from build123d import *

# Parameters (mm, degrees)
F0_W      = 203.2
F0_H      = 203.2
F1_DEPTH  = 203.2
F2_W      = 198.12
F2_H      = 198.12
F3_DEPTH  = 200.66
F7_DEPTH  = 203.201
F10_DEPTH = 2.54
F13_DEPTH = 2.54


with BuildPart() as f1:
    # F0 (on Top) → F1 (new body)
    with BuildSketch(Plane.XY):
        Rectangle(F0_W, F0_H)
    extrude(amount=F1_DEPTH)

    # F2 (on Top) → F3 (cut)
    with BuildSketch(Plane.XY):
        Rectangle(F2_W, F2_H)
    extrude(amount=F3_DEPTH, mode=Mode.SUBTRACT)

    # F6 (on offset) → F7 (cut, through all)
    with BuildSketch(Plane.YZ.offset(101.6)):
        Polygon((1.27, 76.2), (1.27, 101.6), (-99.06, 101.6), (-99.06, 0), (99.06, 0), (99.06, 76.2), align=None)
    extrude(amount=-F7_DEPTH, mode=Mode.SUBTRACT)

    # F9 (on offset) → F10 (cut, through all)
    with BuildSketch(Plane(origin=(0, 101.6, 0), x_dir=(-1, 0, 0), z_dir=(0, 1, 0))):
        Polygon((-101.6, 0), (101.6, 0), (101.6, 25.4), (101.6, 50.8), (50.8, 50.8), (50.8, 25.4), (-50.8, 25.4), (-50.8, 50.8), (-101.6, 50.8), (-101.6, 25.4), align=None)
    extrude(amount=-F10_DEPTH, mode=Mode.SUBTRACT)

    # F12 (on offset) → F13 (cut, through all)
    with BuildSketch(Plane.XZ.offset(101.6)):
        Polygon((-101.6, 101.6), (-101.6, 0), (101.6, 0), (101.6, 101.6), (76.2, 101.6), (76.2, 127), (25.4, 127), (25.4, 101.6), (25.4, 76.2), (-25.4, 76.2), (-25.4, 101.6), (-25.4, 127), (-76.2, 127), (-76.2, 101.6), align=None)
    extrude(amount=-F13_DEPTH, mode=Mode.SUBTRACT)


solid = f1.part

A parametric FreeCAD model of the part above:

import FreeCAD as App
import Part
import Sketcher
from FreeCAD import Vector
Q = App.Units.Quantity

doc = App.newDocument("Part")
body = doc.addObject("PartDesign::Body", "Body")

sketch1 = body.newObject("Sketcher::SketchObject", "Sketch")
sketch1.AttachmentSupport = (doc.getObject("XY_Plane"), [""])
sketch1.MapMode = "FlatFace"
sketch1.addGeometry([
    Part.LineSegment(Vector(-102, 102, 0), Vector(-102, -102, 0)),
    Part.LineSegment(Vector(-102, -102, 0), Vector(102, -102, 0)),
    Part.LineSegment(Vector(102, -102, 0), Vector(102, 102, 0)),
    Part.LineSegment(Vector(102, 102, 0), Vector(-102, 102, 0)),
], False)
sketch1.addConstraint([
    Sketcher.Constraint("Coincident", 0, 2, 1, 1),
    Sketcher.Constraint("Coincident", 1, 2, 2, 1),
    Sketcher.Constraint("Coincident", 2, 2, 3, 1),
    Sketcher.Constraint("Coincident", 3, 2, 0, 1),
    Sketcher.Constraint("Vertical", 0),
    Sketcher.Constraint("Horizontal", 1),
    Sketcher.Constraint("Vertical", 2),
    Sketcher.Constraint("Horizontal", 3),
    Sketcher.Constraint("Symmetric", 0, 2, 2, 2, -1, 1),
    Sketcher.Constraint("Equal", 3, 0),
    Sketcher.Constraint("DistanceX", 1, 1, 1, 2, Q("8 in")),
])
pad1 = body.newObject("PartDesign::Pad", "Pad")
pad1.Profile = sketch1
pad1.Length = Q("8 in")

sketch2 = body.newObject("Sketcher::SketchObject", "Sketch001")
sketch2.AttachmentSupport = (doc.getObject("XY_Plane"), [""])
sketch2.MapMode = "FlatFace"
sketch2.addGeometry([
    Part.LineSegment(Vector(-99, 99, 0), Vector(-99, -99, 0)),
    Part.LineSegment(Vector(-99, -99, 0), Vector(99, -99, 0)),
    Part.LineSegment(Vector(99, -99, 0), Vector(99, 99, 0)),
    Part.LineSegment(Vector(99, 99, 0), Vector(-99, 99, 0)),
], False)
sketch2.addConstraint([
    Sketcher.Constraint("Coincident", 0, 2, 1, 1),
    Sketcher.Constraint("Coincident", 1, 2, 2, 1),
    Sketcher.Constraint("Coincident", 2, 2, 3, 1),
    Sketcher.Constraint("Coincident", 3, 2, 0, 1),
    Sketcher.Constraint("Vertical", 0),
    Sketcher.Constraint("Horizontal", 1),
    Sketcher.Constraint("Vertical", 2),
    Sketcher.Constraint("Horizontal", 3),
    Sketcher.Constraint("Symmetric", 0, 2, 2, 2, -1, 1),
    Sketcher.Constraint("Equal", 3, 0),
    Sketcher.Constraint("DistanceX", 1, 1, 1, 2, Q("7.8 in")),
])
pocket1 = body.newObject("PartDesign::Pocket", "Pocket")
pocket1.Profile = sketch2
pocket1.Length = Q("7.9 in")
pocket1.Reversed = True

sketch3 = body.newObject("Sketcher::SketchObject", "Sketch002")
sketch3.AttachmentSupport = (doc.getObject("YZ_Plane"), [""])
sketch3.MapMode = "FlatFace"
sketch3.AttachmentOffset = App.Placement(Vector(0, 0, 4 * 25.4), App.Rotation())
sketch3.addGeometry([
    Part.LineSegment(Vector(1, 76, 0), Vector(1, 102, 0)),
    Part.LineSegment(Vector(1, 102, 0), Vector(-99, 102, 0)),
    Part.LineSegment(Vector(-99, 102, 0), Vector(-99, 0, 0)),
    Part.LineSegment(Vector(-99, 0, 0), Vector(99, 0, 0)),
    Part.LineSegment(Vector(99, 0, 0), Vector(99, 76, 0)),
    Part.LineSegment(Vector(99, 76, 0), Vector(1, 76, 0)),
], False)
sketch3.addConstraint([
    Sketcher.Constraint("Coincident", 0, 2, 1, 1),
    Sketcher.Constraint("Coincident", 1, 2, 2, 1),
    Sketcher.Constraint("Coincident", 2, 2, 3, 1),
    Sketcher.Constraint("Coincident", 3, 2, 4, 1),
    Sketcher.Constraint("Coincident", 4, 2, 5, 1),
    Sketcher.Constraint("Coincident", 5, 2, 0, 1),
    Sketcher.Constraint("Vertical", 0),
    Sketcher.Constraint("Horizontal", 1),
    Sketcher.Constraint("Vertical", 2),
    Sketcher.Constraint("Horizontal", 3),
    Sketcher.Constraint("Vertical", 4),
    Sketcher.Constraint("Horizontal", 5),
    Sketcher.Constraint("Symmetric", 2, 2, 3, 2, -1, 1),
    Sketcher.Constraint("DistanceY", 0, 1, 0, 2, Q("1 in")),
    Sketcher.Constraint("DistanceY", 2, 2, 2, 1, Q("4 in")),
    Sketcher.Constraint("DistanceX", 3, 1, 3, 2, Q("7.8 in")),
    Sketcher.Constraint("DistanceX", 1, 2, 1, 1, Q("3.95 in")),
])
pocket2 = body.newObject("PartDesign::Pocket", "Pocket001")
pocket2.Profile = sketch3
pocket2.Type = "ThroughAll"

sketch4 = body.newObject("Sketcher::SketchObject", "Sketch003")
sketch4.AttachmentSupport = (doc.getObject("XZ_Plane"), [""])
sketch4.MapMode = "FlatFace"
sketch4.AttachmentOffset = App.Placement(Vector(0, 0, -4 * 25.4), App.Rotation())
sketch4.addGeometry([
    Part.LineSegment(Vector(102, 0, 0), Vector(-102, 0, 0)),
    Part.LineSegment(Vector(-102, 0, 0), Vector(-102, 51, 0)),
    Part.LineSegment(Vector(-102, 51, 0), Vector(-51, 51, 0)),
    Part.LineSegment(Vector(-51, 51, 0), Vector(-51, 25, 0)),
    Part.LineSegment(Vector(-51, 25, 0), Vector(51, 25, 0)),
    Part.LineSegment(Vector(51, 25, 0), Vector(51, 51, 0)),
    Part.LineSegment(Vector(51, 51, 0), Vector(102, 51, 0)),
    Part.LineSegment(Vector(102, 51, 0), Vector(102, 0, 0)),
], False)
sketch4.addConstraint([
    Sketcher.Constraint("Coincident", 0, 2, 1, 1),
    Sketcher.Constraint("Coincident", 1, 2, 2, 1),
    Sketcher.Constraint("Coincident", 2, 2, 3, 1),
    Sketcher.Constraint("Coincident", 3, 2, 4, 1),
    Sketcher.Constraint("Coincident", 4, 2, 5, 1),
    Sketcher.Constraint("Coincident", 5, 2, 6, 1),
    Sketcher.Constraint("Coincident", 6, 2, 7, 1),
    Sketcher.Constraint("Coincident", 7, 2, 0, 1),
    Sketcher.Constraint("Horizontal", 0),
    Sketcher.Constraint("Vertical", 1),
    Sketcher.Constraint("Horizontal", 2),
    Sketcher.Constraint("Vertical", 3),
    Sketcher.Constraint("Horizontal", 4),
    Sketcher.Constraint("Vertical", 5),
    Sketcher.Constraint("Horizontal", 6),
    Sketcher.Constraint("Vertical", 7),
    Sketcher.Constraint("Symmetric", 0, 2, 7, 2, -1, 1),
    Sketcher.Constraint("Symmetric", 2, 2, 5, 2, -2),
    Sketcher.Constraint("Equal", 6, 1),
    Sketcher.Constraint("DistanceX", 0, 2, 0, 1, Q("8 in")),
    Sketcher.Constraint("DistanceX", 2, 1, 2, 2, Q("2 in")),
    Sketcher.Constraint("DistanceY", 3, 2, 3, 1, Q("1 in")),
])
pocket3 = body.newObject("PartDesign::Pocket", "Pocket002")
pocket3.Profile = sketch4
pocket3.Length = Q("0.1 in")
pocket3.Reversed = True

sketch5 = body.newObject("Sketcher::SketchObject", "Sketch004")
sketch5.AttachmentSupport = (doc.getObject("XZ_Plane"), [""])
sketch5.MapMode = "FlatFace"
sketch5.AttachmentOffset = App.Placement(Vector(0, 0, 4 * 25.4), App.Rotation())
sketch5.addGeometry([
    Part.LineSegment(Vector(-102, 102, 0), Vector(-102, 0, 0)),
    Part.LineSegment(Vector(-102, 0, 0), Vector(102, 0, 0)),
    Part.LineSegment(Vector(102, 0, 0), Vector(102, 102, 0)),
    Part.LineSegment(Vector(102, 102, 0), Vector(76, 102, 0)),
    Part.LineSegment(Vector(76, 102, 0), Vector(76, 127, 0)),
    Part.LineSegment(Vector(76, 127, 0), Vector(25, 127, 0)),
    Part.LineSegment(Vector(25, 127, 0), Vector(25, 76, 0)),
    Part.LineSegment(Vector(25, 76, 0), Vector(-25, 76, 0)),
    Part.LineSegment(Vector(-25, 76, 0), Vector(-25, 127, 0)),
    Part.LineSegment(Vector(-25, 127, 0), Vector(-76, 127, 0)),
    Part.LineSegment(Vector(-76, 127, 0), Vector(-76, 102, 0)),
    Part.LineSegment(Vector(-76, 102, 0), Vector(-102, 102, 0)),
], False)
sketch5.addConstraint([
    Sketcher.Constraint("Coincident", 0, 2, 1, 1),
    Sketcher.Constraint("Coincident", 1, 2, 2, 1),
    Sketcher.Constraint("Coincident", 2, 2, 3, 1),
    Sketcher.Constraint("Coincident", 3, 2, 4, 1),
    Sketcher.Constraint("Coincident", 4, 2, 5, 1),
    Sketcher.Constraint("Coincident", 5, 2, 6, 1),
    Sketcher.Constraint("Coincident", 6, 2, 7, 1),
    Sketcher.Constraint("Coincident", 7, 2, 8, 1),
    Sketcher.Constraint("Coincident", 8, 2, 9, 1),
    Sketcher.Constraint("Coincident", 9, 2, 10, 1),
    Sketcher.Constraint("Coincident", 10, 2, 11, 1),
    Sketcher.Constraint("Coincident", 11, 2, 0, 1),
    Sketcher.Constraint("Vertical", 0),
    Sketcher.Constraint("Horizontal", 1),
    Sketcher.Constraint("Vertical", 2),
    Sketcher.Constraint("Horizontal", 3),
    Sketcher.Constraint("Vertical", 4),
    Sketcher.Constraint("Horizontal", 5),
    Sketcher.Constraint("Vertical", 6),
    Sketcher.Constraint("Horizontal", 7),
    Sketcher.Constraint("Vertical", 8),
    Sketcher.Constraint("Horizontal", 9),
    Sketcher.Constraint("Vertical", 10),
    Sketcher.Constraint("Horizontal", 11),
    Sketcher.Constraint("Symmetric", 0, 2, 1, 2, -1, 1),
    Sketcher.Constraint("Symmetric", 5, 2, 8, 2, -2),
    Sketcher.Constraint("Symmetric", 3, 2, 10, 2, -2),
    Sketcher.Constraint("Equal", 5, 7),
    Sketcher.Constraint("Equal", 11, 4),
    Sketcher.Constraint("Equal", 9, 6),
    Sketcher.Constraint("DistanceX", 1, 1, 1, 2, Q("8 in")),
    Sketcher.Constraint("DistanceX", 3, 2, 3, 1, Q("1 in")),
    Sketcher.Constraint("DistanceY", 0, 2, 0, 1, Q("4 in")),
])
pocket4 = body.newObject("PartDesign::Pocket", "Pocket003")
pocket4.Profile = sketch5
pocket4.Length = Q("0.1 in")

doc.recompute()
